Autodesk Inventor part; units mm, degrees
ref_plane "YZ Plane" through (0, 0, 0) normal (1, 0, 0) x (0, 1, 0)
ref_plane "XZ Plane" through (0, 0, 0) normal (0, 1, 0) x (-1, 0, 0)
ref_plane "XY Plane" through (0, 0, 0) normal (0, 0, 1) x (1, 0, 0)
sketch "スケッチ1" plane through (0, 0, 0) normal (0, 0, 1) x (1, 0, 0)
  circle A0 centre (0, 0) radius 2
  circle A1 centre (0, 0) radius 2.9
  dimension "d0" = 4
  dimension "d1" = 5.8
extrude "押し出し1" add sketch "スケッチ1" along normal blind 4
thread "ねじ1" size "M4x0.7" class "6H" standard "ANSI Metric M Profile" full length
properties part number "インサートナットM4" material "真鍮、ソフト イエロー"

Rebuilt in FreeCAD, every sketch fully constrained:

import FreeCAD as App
import Part
import Sketcher
from FreeCAD import Vector

doc = App.newDocument("Part")
body = doc.addObject("PartDesign::Body", "Body")

# Sketch on XY plane
sketch1 = body.newObject("Sketcher::SketchObject", "Sketch")
sketch1.AttachmentSupport = (doc.getObject("XY_Plane"), [""])
sketch1.MapMode = "FlatFace"
sketch1.addGeometry(Part.Circle(Vector(0, 0, 0), Vector(0, 0, 1), 2.9), False)
sketch1.addGeometry(Part.Circle(Vector(0, 0, 0), Vector(0, 0, 1), 2), False)
sketch1.addConstraint(Sketcher.Constraint("Coincident", 0, 3, -1, 1))
sketch1.addConstraint(Sketcher.Constraint("Coincident", 1, 3, -1, 1))
sketch1.addConstraint(Sketcher.Constraint("Diameter", 1, 4.0))
sketch1.addConstraint(Sketcher.Constraint("Diameter", 0, 5.8))
pad1 = body.newObject("PartDesign::Pad", "Pad")
pad1.Profile = sketch1
pad1.Length = 4

doc.recompute()
